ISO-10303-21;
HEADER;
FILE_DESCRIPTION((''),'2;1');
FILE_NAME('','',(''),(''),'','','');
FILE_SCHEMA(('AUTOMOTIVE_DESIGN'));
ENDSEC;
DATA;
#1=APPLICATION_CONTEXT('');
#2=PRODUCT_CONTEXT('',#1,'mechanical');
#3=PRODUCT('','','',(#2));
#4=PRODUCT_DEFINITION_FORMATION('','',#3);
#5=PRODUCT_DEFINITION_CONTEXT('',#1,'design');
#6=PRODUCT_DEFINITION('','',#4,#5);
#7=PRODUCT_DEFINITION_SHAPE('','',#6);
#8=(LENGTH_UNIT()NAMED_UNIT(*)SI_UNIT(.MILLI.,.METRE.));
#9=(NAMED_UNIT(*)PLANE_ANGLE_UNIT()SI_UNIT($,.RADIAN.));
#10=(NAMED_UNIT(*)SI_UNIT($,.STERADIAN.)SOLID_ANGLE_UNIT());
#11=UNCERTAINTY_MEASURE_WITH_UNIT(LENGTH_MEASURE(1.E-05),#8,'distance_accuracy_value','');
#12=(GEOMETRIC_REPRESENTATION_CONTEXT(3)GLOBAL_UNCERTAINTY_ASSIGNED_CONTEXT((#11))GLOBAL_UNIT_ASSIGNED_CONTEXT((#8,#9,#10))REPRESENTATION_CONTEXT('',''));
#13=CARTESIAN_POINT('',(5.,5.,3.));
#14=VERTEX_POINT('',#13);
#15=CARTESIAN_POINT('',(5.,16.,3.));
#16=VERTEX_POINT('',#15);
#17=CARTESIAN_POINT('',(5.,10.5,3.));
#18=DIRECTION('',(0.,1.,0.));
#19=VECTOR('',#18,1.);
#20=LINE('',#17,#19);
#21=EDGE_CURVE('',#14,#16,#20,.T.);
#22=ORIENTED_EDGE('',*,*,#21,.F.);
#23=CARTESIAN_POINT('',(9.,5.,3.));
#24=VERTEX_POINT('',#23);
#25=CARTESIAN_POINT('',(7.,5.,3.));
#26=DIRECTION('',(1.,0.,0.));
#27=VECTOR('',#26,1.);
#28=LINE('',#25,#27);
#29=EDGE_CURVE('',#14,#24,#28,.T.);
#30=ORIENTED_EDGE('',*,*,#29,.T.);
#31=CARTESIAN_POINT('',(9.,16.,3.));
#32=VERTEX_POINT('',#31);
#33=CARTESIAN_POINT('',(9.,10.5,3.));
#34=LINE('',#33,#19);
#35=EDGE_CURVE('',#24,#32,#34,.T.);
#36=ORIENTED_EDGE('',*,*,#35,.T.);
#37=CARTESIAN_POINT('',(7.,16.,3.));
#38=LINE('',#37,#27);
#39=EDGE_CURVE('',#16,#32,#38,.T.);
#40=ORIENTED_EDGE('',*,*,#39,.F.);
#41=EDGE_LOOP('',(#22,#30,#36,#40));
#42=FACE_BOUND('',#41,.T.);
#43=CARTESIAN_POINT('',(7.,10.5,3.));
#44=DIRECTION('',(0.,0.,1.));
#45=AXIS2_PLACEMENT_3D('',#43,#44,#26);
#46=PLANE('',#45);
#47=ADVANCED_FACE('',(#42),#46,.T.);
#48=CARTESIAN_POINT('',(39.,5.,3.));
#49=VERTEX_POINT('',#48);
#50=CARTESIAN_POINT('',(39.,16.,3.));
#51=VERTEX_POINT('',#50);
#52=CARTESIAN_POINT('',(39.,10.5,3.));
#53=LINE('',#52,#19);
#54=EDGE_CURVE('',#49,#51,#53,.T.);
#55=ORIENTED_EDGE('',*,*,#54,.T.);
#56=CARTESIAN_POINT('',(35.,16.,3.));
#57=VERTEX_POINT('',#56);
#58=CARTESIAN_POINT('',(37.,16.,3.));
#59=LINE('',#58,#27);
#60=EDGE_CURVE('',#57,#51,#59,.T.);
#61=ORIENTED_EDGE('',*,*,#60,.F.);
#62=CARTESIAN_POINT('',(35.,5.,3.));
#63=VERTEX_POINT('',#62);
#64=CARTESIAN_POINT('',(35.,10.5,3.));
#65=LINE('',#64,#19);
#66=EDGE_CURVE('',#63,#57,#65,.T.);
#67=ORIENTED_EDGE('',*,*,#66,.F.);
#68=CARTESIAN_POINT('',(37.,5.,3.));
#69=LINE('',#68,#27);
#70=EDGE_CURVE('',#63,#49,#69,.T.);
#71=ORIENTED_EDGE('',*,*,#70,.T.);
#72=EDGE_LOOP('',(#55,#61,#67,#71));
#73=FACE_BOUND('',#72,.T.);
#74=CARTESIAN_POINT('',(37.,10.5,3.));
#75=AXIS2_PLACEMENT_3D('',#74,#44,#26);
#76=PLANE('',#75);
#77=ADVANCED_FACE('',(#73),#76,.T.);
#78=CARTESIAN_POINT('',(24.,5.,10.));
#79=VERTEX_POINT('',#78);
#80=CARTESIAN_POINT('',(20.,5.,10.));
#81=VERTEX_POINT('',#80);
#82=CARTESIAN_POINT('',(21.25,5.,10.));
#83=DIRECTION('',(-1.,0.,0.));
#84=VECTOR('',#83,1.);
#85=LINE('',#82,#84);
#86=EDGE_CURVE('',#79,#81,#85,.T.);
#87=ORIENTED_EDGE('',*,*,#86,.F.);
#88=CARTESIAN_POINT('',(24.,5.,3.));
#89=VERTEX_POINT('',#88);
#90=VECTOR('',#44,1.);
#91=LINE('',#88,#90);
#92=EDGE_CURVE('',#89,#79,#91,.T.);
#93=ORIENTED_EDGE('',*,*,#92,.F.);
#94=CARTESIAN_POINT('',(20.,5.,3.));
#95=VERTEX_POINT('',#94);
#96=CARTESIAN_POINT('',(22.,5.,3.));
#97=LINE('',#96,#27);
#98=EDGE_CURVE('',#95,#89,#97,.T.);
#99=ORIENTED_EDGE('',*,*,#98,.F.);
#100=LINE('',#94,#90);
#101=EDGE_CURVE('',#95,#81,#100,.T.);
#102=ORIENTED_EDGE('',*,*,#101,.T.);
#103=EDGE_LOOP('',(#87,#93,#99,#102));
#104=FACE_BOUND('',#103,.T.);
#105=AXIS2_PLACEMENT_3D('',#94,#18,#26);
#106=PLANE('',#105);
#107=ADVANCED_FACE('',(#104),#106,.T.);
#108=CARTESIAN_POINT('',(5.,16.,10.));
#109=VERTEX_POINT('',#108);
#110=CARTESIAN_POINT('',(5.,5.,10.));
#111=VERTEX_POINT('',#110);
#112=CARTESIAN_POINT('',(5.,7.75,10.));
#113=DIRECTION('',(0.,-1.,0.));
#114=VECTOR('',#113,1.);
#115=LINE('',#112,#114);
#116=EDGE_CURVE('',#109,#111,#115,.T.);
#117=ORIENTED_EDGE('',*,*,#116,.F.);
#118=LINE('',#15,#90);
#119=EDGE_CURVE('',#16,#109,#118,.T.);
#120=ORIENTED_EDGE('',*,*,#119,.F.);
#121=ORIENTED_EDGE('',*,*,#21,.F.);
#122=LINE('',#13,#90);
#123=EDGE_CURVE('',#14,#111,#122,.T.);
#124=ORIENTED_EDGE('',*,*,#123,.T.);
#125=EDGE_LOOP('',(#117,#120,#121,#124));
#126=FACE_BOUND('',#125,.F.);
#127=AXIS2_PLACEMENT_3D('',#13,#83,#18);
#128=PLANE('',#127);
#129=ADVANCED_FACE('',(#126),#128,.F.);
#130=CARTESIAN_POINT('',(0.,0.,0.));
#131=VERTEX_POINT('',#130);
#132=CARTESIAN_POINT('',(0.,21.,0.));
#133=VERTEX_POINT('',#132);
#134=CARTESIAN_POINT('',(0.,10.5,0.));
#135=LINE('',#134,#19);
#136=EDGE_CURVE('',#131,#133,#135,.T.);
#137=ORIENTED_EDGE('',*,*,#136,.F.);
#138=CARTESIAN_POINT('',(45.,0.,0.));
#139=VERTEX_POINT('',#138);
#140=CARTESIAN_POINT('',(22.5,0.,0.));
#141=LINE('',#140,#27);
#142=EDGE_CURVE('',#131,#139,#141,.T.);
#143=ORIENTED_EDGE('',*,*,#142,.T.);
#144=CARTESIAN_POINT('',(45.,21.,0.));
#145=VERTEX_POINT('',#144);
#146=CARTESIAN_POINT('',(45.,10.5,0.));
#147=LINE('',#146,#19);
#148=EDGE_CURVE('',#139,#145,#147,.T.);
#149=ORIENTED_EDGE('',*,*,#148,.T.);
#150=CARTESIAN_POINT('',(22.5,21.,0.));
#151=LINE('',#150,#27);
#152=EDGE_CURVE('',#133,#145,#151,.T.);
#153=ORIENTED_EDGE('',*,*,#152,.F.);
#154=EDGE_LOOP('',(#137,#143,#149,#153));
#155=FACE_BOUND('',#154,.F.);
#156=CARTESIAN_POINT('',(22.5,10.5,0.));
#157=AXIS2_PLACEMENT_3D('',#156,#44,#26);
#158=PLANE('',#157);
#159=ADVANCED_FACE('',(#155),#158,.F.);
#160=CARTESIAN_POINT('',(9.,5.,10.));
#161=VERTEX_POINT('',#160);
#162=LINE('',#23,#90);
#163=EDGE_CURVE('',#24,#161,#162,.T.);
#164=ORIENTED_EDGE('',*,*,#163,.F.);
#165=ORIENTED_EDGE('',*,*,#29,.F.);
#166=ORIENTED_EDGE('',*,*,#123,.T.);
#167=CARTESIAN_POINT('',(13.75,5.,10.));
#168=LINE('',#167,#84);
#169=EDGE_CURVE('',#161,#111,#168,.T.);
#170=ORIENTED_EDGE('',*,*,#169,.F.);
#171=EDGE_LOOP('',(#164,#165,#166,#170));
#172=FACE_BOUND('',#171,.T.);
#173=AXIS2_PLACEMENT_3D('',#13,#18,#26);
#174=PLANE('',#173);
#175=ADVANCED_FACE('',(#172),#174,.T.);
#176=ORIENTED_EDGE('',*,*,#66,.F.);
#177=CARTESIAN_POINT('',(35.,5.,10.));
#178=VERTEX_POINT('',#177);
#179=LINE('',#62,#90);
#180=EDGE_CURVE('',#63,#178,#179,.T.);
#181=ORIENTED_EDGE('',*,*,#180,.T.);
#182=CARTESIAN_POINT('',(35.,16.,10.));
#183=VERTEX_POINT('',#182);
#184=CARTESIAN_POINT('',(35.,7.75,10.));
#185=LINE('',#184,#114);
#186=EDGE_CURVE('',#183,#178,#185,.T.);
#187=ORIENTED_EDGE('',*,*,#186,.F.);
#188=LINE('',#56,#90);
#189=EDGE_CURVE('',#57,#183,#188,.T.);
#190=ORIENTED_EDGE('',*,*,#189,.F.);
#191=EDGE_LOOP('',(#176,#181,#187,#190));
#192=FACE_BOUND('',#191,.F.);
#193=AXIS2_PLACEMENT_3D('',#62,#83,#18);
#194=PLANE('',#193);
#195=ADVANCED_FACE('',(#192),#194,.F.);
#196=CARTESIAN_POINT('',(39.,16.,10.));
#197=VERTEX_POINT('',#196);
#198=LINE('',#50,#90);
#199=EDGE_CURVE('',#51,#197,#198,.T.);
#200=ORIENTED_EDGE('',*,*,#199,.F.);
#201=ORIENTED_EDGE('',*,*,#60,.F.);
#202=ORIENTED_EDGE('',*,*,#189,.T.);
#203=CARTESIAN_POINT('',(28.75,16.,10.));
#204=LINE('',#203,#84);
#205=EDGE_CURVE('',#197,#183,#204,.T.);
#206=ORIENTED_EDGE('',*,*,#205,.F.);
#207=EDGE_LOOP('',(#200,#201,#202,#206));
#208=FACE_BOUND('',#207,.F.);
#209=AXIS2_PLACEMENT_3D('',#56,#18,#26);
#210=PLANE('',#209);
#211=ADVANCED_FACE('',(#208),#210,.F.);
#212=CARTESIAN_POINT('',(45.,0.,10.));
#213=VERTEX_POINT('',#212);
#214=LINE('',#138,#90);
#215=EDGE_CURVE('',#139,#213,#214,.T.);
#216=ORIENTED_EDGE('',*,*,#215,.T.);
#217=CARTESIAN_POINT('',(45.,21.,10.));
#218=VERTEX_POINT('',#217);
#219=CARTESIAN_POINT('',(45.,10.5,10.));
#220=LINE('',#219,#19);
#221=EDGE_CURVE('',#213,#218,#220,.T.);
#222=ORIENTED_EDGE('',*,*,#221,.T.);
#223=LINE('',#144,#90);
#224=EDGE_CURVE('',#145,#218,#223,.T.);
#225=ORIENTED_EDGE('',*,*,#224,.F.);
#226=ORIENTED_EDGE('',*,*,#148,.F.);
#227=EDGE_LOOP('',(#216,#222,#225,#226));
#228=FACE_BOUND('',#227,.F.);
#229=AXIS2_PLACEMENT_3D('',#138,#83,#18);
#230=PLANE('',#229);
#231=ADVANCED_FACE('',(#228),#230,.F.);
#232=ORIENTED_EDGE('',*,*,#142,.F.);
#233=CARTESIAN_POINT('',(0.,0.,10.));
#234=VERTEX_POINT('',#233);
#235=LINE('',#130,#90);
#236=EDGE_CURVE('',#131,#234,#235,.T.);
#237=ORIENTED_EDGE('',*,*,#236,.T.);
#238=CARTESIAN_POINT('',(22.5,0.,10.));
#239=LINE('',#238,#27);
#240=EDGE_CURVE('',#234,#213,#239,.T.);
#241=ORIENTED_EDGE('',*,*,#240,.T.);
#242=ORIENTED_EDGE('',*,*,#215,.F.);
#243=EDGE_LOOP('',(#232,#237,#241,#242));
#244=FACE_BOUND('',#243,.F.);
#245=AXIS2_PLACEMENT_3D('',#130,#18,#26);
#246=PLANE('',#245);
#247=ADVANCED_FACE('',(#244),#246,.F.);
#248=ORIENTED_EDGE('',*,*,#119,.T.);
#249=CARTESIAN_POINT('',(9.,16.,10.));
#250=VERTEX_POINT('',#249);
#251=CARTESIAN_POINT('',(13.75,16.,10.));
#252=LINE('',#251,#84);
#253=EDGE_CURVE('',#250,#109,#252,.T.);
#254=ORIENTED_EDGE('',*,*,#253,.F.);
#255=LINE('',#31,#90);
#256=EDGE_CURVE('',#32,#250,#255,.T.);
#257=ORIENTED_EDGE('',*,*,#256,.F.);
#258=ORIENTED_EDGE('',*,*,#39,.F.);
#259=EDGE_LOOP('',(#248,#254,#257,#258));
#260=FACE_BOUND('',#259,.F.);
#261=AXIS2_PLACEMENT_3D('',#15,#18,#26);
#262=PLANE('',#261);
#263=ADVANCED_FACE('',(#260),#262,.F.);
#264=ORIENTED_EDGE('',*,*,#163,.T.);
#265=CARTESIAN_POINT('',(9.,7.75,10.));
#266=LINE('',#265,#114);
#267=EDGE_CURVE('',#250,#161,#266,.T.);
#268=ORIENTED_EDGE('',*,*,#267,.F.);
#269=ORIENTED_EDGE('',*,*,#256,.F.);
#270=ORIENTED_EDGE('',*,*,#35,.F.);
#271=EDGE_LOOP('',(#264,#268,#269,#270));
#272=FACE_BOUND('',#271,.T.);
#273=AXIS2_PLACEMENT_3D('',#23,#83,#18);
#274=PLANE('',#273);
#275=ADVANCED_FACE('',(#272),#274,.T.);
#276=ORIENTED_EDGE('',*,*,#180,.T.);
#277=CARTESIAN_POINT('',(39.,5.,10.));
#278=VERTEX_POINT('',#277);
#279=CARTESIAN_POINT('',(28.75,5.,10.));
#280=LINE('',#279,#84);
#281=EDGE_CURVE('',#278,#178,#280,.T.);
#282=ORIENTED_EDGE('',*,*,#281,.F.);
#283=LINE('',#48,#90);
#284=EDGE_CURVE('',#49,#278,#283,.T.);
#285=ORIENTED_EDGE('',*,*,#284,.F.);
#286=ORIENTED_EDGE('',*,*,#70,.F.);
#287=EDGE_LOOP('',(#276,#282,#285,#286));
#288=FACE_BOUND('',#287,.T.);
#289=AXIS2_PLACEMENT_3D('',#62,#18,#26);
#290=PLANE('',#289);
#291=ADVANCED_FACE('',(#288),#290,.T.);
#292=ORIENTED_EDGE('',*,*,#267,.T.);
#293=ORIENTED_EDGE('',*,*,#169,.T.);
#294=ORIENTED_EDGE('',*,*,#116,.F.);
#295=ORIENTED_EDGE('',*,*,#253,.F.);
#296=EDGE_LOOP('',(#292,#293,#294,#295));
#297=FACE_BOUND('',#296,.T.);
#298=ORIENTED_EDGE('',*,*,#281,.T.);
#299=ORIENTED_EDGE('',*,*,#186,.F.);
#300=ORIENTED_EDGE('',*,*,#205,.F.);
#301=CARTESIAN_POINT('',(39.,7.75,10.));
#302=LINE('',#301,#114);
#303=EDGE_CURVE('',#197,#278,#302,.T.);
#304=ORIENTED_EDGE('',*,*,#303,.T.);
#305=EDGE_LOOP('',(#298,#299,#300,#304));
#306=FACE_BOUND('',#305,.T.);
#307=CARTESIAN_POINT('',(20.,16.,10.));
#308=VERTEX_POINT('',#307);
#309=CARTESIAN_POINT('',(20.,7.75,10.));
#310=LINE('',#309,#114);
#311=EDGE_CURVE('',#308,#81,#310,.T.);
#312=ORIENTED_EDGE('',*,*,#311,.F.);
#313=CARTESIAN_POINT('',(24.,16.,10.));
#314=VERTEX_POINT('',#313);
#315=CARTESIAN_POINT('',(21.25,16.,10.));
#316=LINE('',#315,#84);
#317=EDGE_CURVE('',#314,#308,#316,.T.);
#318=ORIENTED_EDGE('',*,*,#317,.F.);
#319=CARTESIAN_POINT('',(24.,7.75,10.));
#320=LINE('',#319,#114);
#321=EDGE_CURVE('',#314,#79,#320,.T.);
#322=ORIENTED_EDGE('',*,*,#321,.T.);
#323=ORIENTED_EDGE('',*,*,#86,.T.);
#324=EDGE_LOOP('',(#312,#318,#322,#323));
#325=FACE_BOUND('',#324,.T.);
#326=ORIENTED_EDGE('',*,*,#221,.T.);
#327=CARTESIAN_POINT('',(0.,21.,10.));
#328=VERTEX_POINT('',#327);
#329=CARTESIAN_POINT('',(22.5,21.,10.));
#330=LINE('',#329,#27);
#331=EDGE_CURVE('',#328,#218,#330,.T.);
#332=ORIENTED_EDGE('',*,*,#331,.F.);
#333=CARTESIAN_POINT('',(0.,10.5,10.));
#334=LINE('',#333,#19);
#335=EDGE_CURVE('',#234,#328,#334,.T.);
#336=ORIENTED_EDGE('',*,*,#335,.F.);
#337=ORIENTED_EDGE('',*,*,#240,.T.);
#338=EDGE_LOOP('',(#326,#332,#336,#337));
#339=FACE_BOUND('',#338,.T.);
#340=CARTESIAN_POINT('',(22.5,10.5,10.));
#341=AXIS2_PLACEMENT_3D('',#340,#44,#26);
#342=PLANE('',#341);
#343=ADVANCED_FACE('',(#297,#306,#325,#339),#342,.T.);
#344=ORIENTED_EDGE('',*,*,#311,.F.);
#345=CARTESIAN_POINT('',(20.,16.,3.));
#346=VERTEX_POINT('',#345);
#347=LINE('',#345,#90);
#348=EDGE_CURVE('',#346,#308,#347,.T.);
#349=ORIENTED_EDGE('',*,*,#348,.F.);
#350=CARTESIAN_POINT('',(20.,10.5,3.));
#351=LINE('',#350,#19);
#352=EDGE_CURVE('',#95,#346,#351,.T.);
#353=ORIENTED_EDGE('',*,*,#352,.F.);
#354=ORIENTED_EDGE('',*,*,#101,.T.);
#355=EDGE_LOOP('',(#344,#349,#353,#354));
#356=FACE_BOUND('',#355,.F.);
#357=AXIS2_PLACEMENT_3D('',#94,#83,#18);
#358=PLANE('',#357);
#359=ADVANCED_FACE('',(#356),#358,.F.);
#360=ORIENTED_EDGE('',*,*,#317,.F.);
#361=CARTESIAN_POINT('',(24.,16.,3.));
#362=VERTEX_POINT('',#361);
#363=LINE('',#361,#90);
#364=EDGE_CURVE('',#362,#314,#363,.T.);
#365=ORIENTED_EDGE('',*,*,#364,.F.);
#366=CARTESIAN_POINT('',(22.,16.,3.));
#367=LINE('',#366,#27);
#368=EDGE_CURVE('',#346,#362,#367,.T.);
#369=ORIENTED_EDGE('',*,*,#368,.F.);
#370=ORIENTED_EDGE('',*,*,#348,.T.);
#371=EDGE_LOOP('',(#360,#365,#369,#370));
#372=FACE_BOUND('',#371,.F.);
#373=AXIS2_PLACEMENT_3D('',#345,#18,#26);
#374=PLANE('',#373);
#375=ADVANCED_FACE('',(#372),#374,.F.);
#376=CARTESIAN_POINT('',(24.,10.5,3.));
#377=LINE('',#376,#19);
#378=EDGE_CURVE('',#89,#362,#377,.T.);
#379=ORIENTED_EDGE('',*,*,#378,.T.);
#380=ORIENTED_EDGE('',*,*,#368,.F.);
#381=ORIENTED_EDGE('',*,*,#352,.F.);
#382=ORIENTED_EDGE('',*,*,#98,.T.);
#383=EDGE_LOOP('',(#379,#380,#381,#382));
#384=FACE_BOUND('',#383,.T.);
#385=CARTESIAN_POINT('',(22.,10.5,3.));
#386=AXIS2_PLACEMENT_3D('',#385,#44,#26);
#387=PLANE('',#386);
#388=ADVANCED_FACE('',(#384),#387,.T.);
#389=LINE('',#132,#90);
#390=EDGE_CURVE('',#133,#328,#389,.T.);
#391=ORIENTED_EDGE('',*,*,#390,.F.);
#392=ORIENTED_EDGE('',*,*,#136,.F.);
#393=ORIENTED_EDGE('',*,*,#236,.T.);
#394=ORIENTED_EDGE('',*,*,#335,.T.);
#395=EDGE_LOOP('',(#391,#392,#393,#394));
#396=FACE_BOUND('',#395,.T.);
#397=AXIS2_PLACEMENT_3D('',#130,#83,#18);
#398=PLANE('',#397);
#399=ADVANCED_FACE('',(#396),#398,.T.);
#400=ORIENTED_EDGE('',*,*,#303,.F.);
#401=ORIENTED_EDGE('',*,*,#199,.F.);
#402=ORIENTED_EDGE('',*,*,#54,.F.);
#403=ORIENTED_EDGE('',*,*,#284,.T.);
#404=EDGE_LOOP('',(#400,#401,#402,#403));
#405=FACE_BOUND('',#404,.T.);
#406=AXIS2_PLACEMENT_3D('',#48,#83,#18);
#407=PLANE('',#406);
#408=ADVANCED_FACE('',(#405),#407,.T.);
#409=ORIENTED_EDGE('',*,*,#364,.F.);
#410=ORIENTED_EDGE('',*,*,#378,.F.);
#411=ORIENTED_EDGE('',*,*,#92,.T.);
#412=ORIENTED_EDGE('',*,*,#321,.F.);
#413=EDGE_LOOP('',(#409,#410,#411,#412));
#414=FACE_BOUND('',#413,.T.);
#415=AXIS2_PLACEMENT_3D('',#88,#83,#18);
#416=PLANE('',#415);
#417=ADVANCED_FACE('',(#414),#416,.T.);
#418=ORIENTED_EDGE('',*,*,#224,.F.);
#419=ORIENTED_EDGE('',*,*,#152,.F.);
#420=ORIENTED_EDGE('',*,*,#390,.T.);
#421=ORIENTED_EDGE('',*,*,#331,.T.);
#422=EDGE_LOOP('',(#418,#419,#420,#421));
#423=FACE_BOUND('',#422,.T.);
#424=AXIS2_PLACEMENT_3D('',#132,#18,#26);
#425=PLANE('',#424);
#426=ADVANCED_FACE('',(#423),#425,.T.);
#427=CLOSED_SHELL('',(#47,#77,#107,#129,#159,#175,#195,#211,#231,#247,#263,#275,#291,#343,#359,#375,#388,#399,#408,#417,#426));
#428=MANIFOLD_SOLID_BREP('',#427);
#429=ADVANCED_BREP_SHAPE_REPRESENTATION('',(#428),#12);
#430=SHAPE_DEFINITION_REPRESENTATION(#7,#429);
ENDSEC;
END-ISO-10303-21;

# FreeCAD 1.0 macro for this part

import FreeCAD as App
import Part
import Sketcher
from FreeCAD import Vector


def add_polygon(sketch, points):
    """Adds a closed chain of lines whose ends are joined by coincident constraints."""
    first, n = sketch.GeometryCount, len(points)
    for a, b in zip(points, points[1:] + points[:1]):
        sketch.addGeometry(Part.LineSegment(App.Vector(*a, 0), App.Vector(*b, 0)), False)
    for i in range(n):
        sketch.addConstraint(Sketcher.Constraint("Coincident", first + i, 2, first + (i + 1) % n, 1))

doc = App.newDocument("Part")
params = doc.addObject("Spreadsheet::Sheet", "Params")
for row, (alias, value) in enumerate([
    ("sketch1_width", "4 mm"),
    ("sketch1_height", "11 mm"),
    ("pad1_length", "12 mm"),
    ("sketch2_width", "4 mm"),
    ("sketch2_height", "11 mm"),
    ("pad2_length", "12 mm"),
    ("sketch3_width", "4 mm"),
    ("sketch3_height", "11 mm"),
    ("pad3_length", "12 mm"),
    ("sketch4_width", "45 mm"),
    ("sketch4_height", "21 mm"),
    ("pad4_length", "10 mm"),
], start=1):
    params.set(f"A{row}", alias)
    params.set(f"B{row}", "=" + value)
    params.setAlias(f"B{row}", alias)

body = doc.addObject("PartDesign::Body", "Body")

sketch1 = body.newObject("Sketcher::SketchObject", "Sketch")
sketch1.AttachmentSupport = (doc.getObject("XY_Plane"), [""])
sketch1.MapMode = "FlatFace"
add_polygon(sketch1, [(15, 11), (15, 0), (19, 0), (19, 11)])
sketch1.addConstraint([
    Sketcher.Constraint("Vertical", 0),
    Sketcher.Constraint("Horizontal", 1),
    Sketcher.Constraint("Vertical", 2),
    Sketcher.Constraint("Horizontal", 3),
    Sketcher.Constraint("PointOnObject", 0, 2, -1),
    Sketcher.Constraint("DistanceX", 1, 1, 1, 2, 4.0),
    Sketcher.Constraint("DistanceY", 0, 2, 0, 1, 11.0),
    Sketcher.Constraint("DistanceX", -1, 1, 0, 2, 15.0),
])
sketch1.setExpression("Constraints[9]", "Params.sketch1_width")
sketch1.setExpression("Constraints[10]", "Params.sketch1_height")
pad1 = body.newObject("PartDesign::Pad", "Pad")
pad1.Profile = sketch1
pad1.setExpression("Length", "Params.pad1_length")
body2 = doc.addObject("PartDesign::Body", "Body001")

sketch2 = body2.newObject("Sketcher::SketchObject", "Sketch001")
sketch2.AttachmentSupport = (doc.getObject("XY_Plane001"), [""])
sketch2.MapMode = "FlatFace"
add_polygon(sketch2, [(30, 11), (30, 0), (34, 0), (34, 11)])
sketch2.addConstraint([
    Sketcher.Constraint("Vertical", 0),
    Sketcher.Constraint("Horizontal", 1),
    Sketcher.Constraint("Vertical", 2),
    Sketcher.Constraint("Horizontal", 3),
    Sketcher.Constraint("PointOnObject", 0, 2, -1),
    Sketcher.Constraint("DistanceX", 1, 1, 1, 2, 4.0),
    Sketcher.Constraint("DistanceY", 0, 2, 0, 1, 11.0),
    Sketcher.Constraint("DistanceX", -1, 1, 0, 2, 30.0),
])
sketch2.setExpression("Constraints[9]", "Params.sketch2_width")
sketch2.setExpression("Constraints[10]", "Params.sketch2_height")
pad2 = body2.newObject("PartDesign::Pad", "Pad001")
pad2.Profile = sketch2
pad2.setExpression("Length", "Params.pad2_length")
body3 = doc.addObject("PartDesign::Body", "Body002")
body3.AllowCompound = True

sketch3 = body3.newObject("Sketcher::SketchObject", "Sketch002")
sketch3.AttachmentSupport = (doc.getObject("XY_Plane002"), [""])
sketch3.MapMode = "FlatFace"
add_polygon(sketch3, [(0, 11), (0, 0), (4, 0), (4, 11)])
sketch3.addConstraint([
    Sketcher.Constraint("Vertical", 0),
    Sketcher.Constraint("Horizontal", 1),
    Sketcher.Constraint("Vertical", 2),
    Sketcher.Constraint("Horizontal", 3),
    Sketcher.Constraint("Coincident", 0, 2, -1, 1),
    Sketcher.Constraint("DistanceX", 1, 1, 1, 2, 4.0),
    Sketcher.Constraint("DistanceY", 0, 2, 0, 1, 11.0),
])
sketch3.setExpression("Constraints[9]", "Params.sketch3_width")
sketch3.setExpression("Constraints[10]", "Params.sketch3_height")
pad3 = body3.newObject("PartDesign::Pad", "Pad002")
pad3.Profile = sketch3
pad3.setExpression("Length", "Params.pad3_length")
doc.recompute()

boolean = body3.newObject("PartDesign::Boolean", "Boolean")
boolean.Type = "Fuse"
boolean.addObjects([body])
doc.recompute()

boolean2 = body3.newObject("PartDesign::Boolean", "Boolean001")
boolean2.Type = "Fuse"
boolean2.addObjects([body2])
body4 = doc.addObject("PartDesign::Body", "Body003")
body4.AllowCompound = True
doc.recompute()

body3.Placement = App.Placement(Vector(5, 5, 3), App.Rotation(Vector(0, 0, 1), 0))
boolean3 = body4.newObject("PartDesign::Boolean", "Boolean002")
boolean3.Type = "Fuse"
boolean3.addObjects([body3])
body5 = doc.addObject("PartDesign::Body", "Body004")

sketch4 = body5.newObject("Sketcher::SketchObject", "Sketch003")
sketch4.AttachmentSupport = (doc.getObject("XY_Plane004"), [""])
sketch4.MapMode = "FlatFace"
add_polygon(sketch4, [(0, 21), (0, 0), (45, 0), (45, 21)])
sketch4.addConstraint([
    Sketcher.Constraint("Vertical", 0),
    Sketcher.Constraint("Horizontal", 1),
    Sketcher.Constraint("Vertical", 2),
    Sketcher.Constraint("Horizontal", 3),
    Sketcher.Constraint("Coincident", 0, 2, -1, 1),
    Sketcher.Constraint("DistanceX", 1, 1, 1, 2, 45.0),
    Sketcher.Constraint("DistanceY", 0, 2, 0, 1, 21.0),
])
sketch4.setExpression("Constraints[9]", "Params.sketch4_width")
sketch4.setExpression("Constraints[10]", "Params.sketch4_height")
pad4 = body5.newObject("PartDesign::Pad", "Pad003")
pad4.Profile = sketch4
pad4.setExpression("Length", "Params.pad4_length")
doc.recompute()

boolean4 = body5.newObject("PartDesign::Boolean", "Boolean003")
boolean4.Type = "Cut"
boolean4.addObjects([body4])

doc.recompute()
